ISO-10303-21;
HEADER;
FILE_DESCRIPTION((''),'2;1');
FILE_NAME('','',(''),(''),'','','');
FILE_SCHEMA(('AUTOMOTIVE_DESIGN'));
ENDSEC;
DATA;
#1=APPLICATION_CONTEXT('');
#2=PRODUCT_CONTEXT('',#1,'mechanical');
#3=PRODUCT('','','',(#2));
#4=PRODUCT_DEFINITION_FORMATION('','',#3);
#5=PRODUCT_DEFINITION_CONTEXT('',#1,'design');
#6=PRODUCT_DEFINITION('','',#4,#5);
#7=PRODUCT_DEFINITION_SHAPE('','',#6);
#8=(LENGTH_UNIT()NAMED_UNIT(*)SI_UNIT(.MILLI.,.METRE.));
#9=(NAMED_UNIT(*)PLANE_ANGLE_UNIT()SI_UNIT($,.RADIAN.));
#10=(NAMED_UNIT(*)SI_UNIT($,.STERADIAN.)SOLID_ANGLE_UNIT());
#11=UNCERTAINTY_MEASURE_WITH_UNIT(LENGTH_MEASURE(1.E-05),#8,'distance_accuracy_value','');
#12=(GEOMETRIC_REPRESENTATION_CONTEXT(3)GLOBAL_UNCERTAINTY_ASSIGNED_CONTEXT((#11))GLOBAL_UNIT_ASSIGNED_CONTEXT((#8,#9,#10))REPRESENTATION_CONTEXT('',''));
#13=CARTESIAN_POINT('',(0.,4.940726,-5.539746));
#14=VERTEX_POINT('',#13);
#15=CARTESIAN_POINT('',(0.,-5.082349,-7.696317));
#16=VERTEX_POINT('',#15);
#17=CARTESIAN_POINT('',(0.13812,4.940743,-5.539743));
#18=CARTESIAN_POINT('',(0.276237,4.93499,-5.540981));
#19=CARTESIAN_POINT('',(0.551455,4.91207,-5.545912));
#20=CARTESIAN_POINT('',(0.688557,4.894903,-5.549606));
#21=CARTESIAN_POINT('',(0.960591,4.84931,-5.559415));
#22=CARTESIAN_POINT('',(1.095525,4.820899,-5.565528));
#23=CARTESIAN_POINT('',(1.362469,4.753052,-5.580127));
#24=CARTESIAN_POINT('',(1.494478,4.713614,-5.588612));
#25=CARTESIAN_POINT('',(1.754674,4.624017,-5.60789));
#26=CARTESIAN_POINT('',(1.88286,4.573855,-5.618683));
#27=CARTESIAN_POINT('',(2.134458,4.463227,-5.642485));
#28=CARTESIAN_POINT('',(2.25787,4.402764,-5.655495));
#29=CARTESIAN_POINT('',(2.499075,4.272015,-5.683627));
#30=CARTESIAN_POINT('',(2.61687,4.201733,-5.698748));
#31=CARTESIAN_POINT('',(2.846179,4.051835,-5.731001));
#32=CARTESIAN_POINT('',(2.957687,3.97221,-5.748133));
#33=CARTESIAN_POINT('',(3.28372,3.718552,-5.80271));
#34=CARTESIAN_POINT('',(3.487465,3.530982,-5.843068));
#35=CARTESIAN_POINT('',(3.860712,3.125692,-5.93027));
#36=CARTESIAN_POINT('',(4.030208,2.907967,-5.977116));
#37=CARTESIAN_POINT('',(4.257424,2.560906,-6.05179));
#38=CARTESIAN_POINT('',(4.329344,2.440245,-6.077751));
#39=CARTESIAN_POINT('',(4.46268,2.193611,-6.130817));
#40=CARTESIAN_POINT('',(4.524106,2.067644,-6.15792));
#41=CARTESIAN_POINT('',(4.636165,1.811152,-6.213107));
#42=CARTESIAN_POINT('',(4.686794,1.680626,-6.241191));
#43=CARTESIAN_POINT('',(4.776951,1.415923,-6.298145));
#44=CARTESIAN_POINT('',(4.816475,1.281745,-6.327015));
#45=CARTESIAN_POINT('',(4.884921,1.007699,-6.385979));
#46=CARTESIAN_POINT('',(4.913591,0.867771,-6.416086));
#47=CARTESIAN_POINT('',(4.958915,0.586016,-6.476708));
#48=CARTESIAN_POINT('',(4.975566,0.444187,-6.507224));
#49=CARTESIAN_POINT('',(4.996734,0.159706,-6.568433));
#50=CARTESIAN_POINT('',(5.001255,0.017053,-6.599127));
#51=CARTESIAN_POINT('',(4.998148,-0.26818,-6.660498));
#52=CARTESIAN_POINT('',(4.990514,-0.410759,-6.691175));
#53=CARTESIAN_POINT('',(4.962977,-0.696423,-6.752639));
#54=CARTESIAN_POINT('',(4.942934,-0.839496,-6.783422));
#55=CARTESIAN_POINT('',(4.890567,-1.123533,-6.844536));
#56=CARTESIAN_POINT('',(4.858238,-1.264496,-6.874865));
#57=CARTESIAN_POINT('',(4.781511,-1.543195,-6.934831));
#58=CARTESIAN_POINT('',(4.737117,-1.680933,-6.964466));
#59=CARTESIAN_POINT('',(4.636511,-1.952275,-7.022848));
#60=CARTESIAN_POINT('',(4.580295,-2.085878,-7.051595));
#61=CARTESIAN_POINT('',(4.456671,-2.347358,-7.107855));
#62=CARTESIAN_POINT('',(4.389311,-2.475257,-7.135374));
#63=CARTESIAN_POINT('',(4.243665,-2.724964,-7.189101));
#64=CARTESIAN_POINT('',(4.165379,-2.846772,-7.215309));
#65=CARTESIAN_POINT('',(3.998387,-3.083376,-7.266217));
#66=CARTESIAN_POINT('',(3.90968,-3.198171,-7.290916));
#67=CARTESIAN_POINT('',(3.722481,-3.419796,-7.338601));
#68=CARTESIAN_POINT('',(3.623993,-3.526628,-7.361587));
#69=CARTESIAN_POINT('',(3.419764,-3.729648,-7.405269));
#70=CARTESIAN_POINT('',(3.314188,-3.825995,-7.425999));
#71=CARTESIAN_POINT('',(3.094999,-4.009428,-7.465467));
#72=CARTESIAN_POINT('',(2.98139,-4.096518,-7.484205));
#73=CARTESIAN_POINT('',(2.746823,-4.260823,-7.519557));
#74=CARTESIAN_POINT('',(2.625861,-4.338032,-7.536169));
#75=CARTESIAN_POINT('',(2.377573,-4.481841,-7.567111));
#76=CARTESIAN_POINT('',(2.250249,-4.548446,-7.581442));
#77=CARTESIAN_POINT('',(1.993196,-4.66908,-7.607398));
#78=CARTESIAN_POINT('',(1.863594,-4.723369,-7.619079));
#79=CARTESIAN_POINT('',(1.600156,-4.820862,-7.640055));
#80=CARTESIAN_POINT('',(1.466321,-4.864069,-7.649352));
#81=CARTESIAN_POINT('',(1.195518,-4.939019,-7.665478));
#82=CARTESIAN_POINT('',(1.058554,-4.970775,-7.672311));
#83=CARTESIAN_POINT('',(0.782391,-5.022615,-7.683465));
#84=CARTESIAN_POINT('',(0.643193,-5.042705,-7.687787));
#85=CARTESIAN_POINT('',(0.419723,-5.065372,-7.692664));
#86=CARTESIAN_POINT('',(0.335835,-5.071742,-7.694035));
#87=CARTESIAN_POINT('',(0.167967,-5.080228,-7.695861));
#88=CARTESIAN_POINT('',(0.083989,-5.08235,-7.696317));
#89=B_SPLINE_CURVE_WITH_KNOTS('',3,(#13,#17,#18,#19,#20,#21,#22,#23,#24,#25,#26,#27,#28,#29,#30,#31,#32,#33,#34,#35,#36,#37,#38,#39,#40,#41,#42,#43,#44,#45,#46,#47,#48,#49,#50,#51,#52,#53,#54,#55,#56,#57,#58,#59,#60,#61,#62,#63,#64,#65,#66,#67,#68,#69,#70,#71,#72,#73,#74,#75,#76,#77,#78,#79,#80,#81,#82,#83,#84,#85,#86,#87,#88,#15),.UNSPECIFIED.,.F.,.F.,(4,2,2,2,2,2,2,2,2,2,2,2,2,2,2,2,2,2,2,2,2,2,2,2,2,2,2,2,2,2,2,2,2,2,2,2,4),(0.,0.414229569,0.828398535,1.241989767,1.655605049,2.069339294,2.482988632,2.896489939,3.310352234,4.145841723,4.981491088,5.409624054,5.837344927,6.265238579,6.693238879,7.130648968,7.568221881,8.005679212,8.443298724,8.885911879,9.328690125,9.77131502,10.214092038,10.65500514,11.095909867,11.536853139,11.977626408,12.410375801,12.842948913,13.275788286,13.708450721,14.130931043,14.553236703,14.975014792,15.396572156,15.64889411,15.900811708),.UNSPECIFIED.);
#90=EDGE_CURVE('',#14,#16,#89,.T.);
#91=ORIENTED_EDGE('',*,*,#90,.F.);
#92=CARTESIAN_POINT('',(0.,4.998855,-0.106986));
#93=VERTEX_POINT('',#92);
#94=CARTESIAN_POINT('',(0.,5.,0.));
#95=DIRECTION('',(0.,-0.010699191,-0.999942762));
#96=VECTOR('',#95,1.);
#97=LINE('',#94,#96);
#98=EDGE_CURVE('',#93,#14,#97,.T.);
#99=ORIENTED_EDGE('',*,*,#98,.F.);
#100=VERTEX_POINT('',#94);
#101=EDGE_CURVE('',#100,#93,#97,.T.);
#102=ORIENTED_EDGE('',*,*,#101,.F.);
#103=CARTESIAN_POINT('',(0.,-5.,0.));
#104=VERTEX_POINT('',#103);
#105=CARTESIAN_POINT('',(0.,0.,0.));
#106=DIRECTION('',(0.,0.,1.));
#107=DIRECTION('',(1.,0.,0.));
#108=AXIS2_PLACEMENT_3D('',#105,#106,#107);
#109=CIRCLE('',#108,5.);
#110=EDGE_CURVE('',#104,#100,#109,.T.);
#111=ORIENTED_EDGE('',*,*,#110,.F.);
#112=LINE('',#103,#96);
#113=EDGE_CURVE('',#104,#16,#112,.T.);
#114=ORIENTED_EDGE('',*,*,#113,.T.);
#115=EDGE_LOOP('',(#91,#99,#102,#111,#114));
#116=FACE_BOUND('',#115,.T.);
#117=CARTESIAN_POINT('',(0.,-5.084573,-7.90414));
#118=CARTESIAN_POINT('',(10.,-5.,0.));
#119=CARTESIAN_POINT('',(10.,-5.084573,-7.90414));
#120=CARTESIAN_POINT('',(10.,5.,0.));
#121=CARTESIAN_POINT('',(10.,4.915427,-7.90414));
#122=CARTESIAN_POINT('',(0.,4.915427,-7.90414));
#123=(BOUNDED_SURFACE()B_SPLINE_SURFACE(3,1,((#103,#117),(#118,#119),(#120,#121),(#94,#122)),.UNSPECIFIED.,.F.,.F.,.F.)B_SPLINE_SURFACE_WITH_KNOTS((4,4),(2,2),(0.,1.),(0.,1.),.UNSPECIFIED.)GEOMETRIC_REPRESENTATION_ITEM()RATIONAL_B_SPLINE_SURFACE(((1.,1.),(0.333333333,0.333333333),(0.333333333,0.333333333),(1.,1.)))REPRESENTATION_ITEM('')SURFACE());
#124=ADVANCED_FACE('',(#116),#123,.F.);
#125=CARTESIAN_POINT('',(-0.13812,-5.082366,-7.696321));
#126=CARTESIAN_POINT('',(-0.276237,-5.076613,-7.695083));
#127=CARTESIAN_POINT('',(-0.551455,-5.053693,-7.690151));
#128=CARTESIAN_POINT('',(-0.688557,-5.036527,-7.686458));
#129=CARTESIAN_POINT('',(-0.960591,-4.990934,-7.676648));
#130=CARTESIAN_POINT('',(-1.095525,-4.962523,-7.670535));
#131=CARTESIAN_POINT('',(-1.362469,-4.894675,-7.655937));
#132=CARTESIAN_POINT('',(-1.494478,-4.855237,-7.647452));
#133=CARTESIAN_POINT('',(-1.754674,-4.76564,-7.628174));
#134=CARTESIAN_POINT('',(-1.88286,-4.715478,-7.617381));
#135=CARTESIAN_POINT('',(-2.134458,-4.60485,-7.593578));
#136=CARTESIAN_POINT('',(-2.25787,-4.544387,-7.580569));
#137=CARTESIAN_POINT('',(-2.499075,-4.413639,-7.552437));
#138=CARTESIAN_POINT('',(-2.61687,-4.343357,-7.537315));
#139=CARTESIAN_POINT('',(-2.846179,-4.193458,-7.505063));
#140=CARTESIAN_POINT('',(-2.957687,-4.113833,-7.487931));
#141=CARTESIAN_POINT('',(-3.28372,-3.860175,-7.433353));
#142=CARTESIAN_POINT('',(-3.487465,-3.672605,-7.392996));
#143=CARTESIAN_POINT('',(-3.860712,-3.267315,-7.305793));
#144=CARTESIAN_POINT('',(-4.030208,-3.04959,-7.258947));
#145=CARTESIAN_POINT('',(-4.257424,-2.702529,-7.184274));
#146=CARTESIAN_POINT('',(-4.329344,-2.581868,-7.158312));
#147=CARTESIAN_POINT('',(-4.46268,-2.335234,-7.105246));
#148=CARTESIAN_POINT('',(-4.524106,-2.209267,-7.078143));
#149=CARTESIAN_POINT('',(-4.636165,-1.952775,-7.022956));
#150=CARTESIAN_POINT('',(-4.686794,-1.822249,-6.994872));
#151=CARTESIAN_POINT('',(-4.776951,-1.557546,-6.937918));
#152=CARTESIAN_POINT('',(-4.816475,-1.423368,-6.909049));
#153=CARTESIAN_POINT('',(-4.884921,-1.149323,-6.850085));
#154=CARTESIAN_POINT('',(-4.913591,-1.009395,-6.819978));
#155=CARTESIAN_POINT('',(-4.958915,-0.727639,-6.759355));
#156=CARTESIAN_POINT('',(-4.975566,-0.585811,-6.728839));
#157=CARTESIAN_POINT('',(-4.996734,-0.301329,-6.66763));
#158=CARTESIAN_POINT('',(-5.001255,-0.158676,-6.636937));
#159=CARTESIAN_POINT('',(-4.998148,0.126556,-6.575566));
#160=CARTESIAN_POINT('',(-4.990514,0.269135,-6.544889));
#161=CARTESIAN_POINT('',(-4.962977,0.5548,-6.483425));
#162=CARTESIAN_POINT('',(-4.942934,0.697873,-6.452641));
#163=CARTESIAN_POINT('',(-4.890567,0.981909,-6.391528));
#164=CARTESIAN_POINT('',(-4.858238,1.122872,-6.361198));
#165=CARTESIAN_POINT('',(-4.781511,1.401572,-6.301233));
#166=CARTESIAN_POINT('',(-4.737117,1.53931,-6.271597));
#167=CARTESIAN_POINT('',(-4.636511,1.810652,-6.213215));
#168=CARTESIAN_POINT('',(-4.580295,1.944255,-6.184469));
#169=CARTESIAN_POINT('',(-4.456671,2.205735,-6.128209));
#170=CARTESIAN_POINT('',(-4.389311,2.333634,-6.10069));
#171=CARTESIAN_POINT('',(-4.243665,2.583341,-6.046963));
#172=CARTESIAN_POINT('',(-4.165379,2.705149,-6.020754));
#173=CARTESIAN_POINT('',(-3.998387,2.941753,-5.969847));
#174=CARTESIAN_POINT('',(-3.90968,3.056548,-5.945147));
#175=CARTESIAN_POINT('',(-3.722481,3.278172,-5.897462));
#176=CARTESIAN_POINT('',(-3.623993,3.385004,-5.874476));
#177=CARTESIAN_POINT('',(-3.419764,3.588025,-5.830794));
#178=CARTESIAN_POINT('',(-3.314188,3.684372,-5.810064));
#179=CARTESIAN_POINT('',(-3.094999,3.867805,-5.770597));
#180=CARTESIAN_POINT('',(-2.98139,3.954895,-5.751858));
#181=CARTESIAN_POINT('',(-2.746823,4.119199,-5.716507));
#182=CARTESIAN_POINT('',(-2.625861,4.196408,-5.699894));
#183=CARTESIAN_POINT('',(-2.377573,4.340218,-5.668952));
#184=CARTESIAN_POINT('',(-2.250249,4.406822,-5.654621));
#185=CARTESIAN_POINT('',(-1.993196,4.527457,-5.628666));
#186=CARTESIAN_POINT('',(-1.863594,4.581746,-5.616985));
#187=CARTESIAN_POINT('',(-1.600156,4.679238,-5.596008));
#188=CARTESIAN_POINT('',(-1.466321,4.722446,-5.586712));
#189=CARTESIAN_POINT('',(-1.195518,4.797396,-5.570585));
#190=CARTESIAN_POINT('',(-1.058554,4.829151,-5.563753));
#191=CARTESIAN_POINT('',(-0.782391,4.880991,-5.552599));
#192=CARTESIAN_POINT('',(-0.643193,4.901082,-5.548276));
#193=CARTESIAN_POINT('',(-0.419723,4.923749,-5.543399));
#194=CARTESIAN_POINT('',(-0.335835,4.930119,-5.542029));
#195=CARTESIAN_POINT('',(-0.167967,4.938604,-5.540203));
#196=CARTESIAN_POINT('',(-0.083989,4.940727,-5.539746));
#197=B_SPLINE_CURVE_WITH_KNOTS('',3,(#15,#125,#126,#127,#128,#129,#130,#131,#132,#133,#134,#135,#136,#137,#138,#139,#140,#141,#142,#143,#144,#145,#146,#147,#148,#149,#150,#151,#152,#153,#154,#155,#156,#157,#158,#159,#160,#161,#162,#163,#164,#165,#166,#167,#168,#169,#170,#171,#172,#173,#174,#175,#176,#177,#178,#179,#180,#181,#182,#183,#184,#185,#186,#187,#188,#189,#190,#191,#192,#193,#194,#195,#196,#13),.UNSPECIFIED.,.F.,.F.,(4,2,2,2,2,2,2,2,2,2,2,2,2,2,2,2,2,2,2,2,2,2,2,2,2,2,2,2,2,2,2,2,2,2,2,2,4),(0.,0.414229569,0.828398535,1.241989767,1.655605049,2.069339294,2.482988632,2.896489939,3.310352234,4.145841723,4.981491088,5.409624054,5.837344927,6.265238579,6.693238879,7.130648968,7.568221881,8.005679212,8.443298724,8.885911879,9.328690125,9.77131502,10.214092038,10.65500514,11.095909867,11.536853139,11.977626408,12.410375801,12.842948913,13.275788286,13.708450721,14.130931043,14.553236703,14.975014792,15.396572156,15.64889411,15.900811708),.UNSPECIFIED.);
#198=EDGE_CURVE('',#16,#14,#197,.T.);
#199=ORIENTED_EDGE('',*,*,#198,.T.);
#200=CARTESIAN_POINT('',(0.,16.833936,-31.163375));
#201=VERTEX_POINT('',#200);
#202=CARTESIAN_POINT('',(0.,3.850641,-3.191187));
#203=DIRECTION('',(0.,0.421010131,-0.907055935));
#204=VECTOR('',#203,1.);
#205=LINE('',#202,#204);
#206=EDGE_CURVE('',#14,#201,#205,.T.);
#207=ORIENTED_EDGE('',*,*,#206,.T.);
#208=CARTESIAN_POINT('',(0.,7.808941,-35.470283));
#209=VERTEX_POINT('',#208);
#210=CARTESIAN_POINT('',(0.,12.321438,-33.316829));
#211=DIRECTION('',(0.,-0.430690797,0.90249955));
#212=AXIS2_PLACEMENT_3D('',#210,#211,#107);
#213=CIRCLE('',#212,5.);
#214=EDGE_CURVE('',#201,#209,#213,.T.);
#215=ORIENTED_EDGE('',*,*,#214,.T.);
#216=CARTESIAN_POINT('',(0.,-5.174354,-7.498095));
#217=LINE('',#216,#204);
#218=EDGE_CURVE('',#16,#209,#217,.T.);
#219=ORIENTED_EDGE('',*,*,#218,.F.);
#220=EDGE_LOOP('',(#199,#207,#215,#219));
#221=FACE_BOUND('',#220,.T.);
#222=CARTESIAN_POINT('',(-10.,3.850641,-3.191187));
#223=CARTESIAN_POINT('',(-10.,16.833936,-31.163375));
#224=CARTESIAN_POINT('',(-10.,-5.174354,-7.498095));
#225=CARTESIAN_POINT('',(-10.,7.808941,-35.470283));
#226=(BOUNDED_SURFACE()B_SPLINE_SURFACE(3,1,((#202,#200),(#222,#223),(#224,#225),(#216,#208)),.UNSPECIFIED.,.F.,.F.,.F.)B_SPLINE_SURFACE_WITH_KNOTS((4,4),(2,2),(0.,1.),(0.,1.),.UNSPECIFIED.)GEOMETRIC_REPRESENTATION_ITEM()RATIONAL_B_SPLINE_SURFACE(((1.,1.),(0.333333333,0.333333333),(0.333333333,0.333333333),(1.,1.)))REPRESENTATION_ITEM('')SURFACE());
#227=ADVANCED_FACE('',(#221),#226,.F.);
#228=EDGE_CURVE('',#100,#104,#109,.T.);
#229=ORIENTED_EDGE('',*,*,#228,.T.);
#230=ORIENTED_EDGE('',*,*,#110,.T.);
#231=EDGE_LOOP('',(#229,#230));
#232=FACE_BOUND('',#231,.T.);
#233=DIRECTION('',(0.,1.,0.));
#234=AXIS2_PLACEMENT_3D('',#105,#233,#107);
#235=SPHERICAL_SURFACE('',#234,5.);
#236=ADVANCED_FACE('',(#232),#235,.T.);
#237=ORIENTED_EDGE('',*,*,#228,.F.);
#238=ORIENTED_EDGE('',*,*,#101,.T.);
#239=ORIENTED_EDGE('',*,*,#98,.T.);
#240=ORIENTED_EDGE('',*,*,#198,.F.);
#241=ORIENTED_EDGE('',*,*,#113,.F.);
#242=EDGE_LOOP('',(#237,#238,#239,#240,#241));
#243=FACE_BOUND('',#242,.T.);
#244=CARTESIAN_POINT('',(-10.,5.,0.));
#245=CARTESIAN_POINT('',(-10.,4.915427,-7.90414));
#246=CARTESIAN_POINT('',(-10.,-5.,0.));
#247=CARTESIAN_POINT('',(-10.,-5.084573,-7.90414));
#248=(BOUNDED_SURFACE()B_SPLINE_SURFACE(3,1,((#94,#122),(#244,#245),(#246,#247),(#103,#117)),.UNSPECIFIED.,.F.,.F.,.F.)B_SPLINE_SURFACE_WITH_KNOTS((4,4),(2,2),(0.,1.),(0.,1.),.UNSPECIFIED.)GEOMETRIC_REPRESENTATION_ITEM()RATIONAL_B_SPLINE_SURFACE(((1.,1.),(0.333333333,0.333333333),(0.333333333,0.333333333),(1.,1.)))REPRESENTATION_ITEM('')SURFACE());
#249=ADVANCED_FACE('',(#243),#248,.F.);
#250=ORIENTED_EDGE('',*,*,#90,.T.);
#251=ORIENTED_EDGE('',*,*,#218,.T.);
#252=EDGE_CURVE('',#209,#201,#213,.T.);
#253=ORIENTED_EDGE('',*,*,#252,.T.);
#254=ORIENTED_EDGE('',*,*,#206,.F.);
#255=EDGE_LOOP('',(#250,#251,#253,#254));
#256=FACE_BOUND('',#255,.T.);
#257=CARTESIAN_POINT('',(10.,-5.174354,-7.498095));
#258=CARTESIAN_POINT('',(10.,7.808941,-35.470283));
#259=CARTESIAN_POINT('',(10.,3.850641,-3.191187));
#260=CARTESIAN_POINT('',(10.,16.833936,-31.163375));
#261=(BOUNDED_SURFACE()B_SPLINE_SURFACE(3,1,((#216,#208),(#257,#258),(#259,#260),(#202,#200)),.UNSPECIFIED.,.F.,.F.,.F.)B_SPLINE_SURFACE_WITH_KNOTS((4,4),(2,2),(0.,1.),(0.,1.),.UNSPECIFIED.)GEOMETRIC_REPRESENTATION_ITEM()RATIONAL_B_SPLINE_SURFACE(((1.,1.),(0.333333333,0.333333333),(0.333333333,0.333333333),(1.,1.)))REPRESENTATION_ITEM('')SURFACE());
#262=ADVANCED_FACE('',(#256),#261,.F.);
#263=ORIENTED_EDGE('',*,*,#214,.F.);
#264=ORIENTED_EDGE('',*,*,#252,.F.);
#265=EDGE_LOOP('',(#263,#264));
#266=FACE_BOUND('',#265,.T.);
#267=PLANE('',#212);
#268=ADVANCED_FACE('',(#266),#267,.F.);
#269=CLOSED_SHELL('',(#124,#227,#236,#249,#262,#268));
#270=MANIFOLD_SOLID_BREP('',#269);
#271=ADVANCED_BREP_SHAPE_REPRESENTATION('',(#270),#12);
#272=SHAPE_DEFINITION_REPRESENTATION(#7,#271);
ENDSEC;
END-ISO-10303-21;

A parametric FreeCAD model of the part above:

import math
import FreeCAD as App
import Part
import Sketcher

V = App.Vector
Q = App.Units.Quantity

doc = App.newDocument("Part")
params = doc.addObject("Spreadsheet::Sheet", "Params")
for row, (alias, value) in enumerate([
    ("sketch1_radius", "5 mm"),
    ("revolution_angle", "360 deg"),
    ("sketch2_radius", "5 mm"),
    ("pocket1_length", "30 mm"),
    ("sketch3_diameter", "10 mm"),
], start=1):
    params.set(f"A{row}", alias)
    params.set(f"B{row}", "=" + value)
    params.setAlias(f"B{row}", alias)

body = doc.addObject("PartDesign::Body", "Body")

sketch1 = body.newObject("Sketcher::SketchObject", "Sketch")
sketch1.AttachmentSupport = (doc.getObject("XY_Plane"), [""])
sketch1.MapMode = "FlatFace"
sketch1.addGeometry(Part.LineSegment(V(0, 5, 0), V(0, -5, 0)), False)
sketch1.addGeometry(Part.ArcOfCircle(Part.Circle(V(0, 0, 0), V(0, 0, 1), 5), math.radians(-90), math.radians(90)), False)
sketch1.addConstraint(Sketcher.Constraint("Coincident", 0, 1, 1, 2))
sketch1.addConstraint(Sketcher.Constraint("Coincident", 1, 1, 0, 2))
sketch1.addConstraint(Sketcher.Constraint("Vertical", 0))
sketch1.addConstraint(Sketcher.Constraint("Coincident", 1, 3, -1, 1))
sketch1.addConstraint(Sketcher.Constraint("PointOnObject", 0, 1, -2))
sketch1.addConstraint(Sketcher.Constraint("Radius", 1, Q("5 mm")))
sketch1.setExpression("Constraints[5]", "Params.sketch1_radius")
revolution = body.newObject("PartDesign::Revolution", "Revolution")
revolution.Profile = sketch1
revolution.ReferenceAxis = (sketch1, ["V_Axis"])
revolution.setExpression("Angle", "Params.revolution_angle")

sketch2 = body.newObject("Sketcher::SketchObject", "Sketch001")
sketch2.AttachmentSupport = (doc.getObject("XY_Plane"), [""])
sketch2.MapMode = "FlatFace"
sketch2.addGeometry(Part.LineSegment(V(0, 5, 0), V(0, -5, 0)), False)
sketch2.addGeometry(Part.ArcOfCircle(Part.Circle(V(0, 0, 0), V(0, 0, 1), 5), math.radians(-90), math.radians(90)), False)
sketch2.addConstraint(Sketcher.Constraint("Coincident", 0, 1, 1, 2))
sketch2.addConstraint(Sketcher.Constraint("Coincident", 1, 1, 0, 2))
sketch2.addConstraint(Sketcher.Constraint("Vertical", 0))
sketch2.addConstraint(Sketcher.Constraint("Coincident", 1, 3, -1, 1))
sketch2.addConstraint(Sketcher.Constraint("PointOnObject", 0, 1, -2))
sketch2.addConstraint(Sketcher.Constraint("Radius", 1, Q("5 mm")))
sketch2.setExpression("Constraints[5]", "Params.sketch2_radius")
pocket1 = body.newObject("PartDesign::Pocket", "Pocket")
pocket1.Profile = sketch2
pocket1.setExpression("Length", "Params.pocket1_length")

sketch3 = body.newObject("Sketcher::SketchObject", "Sketch002")
sketch3.AttachmentSupport = (doc.getObject("XY_Plane"), [""])
sketch3.MapMode = "FlatFace"
sketch3.addGeometry(Part.Circle(V(0, 0, 0), V(0, 0, 1), 5), False)
sketch3.addConstraint(Sketcher.Constraint("Coincident", 0, 3, -1, 1))
sketch3.addConstraint(Sketcher.Constraint("Diameter", 0, Q("10 mm")))
sketch3.setExpression("Constraints[1]", "Params.sketch3_diameter")

sketch4 = body.newObject("Sketcher::SketchObject", "Sketch003")
sketch4.AttachmentSupport = (doc.getObject("YZ_Plane"), [""])
sketch4.MapMode = "FlatFace"
sketch4.addGeometry(Part.LineSegment(V(0, 0, 0), V(0, -7, 0)), False)
sketch4.addGeometry(Part.LineSegment(V(0, -7, 0), V(12, -33, 0)), False)
sketch4.addConstraint(Sketcher.Constraint("Coincident", 0, 2, 1, 1))
sketch4.addConstraint(Sketcher.Constraint("Coincident", 0, 1, -1, 1))
sketch4.addConstraint(Sketcher.Constraint("Distance", 0, Q("6.618411 mm")))
sketch4.addConstraint(Sketcher.Constraint("DistanceX", 0, 2, -1, 1, Q("0.070812 mm")))
sketch4.addConstraint(Sketcher.Constraint("DistanceX", -1, 1, 1, 2, Q("12.321438 mm")))
sketch4.addConstraint(Sketcher.Constraint("DistanceY", 1, 2, -1, 1, Q("33.316829 mm")))
doc.recompute()

additivepipe = body.newObject("PartDesign::AdditivePipe", "AdditivePipe")
additivepipe.Profile = sketch3
additivepipe.Spine = (sketch4, ["Edge1", "Edge2"])
additivepipe.Transition = "Right corner"

doc.recompute()
